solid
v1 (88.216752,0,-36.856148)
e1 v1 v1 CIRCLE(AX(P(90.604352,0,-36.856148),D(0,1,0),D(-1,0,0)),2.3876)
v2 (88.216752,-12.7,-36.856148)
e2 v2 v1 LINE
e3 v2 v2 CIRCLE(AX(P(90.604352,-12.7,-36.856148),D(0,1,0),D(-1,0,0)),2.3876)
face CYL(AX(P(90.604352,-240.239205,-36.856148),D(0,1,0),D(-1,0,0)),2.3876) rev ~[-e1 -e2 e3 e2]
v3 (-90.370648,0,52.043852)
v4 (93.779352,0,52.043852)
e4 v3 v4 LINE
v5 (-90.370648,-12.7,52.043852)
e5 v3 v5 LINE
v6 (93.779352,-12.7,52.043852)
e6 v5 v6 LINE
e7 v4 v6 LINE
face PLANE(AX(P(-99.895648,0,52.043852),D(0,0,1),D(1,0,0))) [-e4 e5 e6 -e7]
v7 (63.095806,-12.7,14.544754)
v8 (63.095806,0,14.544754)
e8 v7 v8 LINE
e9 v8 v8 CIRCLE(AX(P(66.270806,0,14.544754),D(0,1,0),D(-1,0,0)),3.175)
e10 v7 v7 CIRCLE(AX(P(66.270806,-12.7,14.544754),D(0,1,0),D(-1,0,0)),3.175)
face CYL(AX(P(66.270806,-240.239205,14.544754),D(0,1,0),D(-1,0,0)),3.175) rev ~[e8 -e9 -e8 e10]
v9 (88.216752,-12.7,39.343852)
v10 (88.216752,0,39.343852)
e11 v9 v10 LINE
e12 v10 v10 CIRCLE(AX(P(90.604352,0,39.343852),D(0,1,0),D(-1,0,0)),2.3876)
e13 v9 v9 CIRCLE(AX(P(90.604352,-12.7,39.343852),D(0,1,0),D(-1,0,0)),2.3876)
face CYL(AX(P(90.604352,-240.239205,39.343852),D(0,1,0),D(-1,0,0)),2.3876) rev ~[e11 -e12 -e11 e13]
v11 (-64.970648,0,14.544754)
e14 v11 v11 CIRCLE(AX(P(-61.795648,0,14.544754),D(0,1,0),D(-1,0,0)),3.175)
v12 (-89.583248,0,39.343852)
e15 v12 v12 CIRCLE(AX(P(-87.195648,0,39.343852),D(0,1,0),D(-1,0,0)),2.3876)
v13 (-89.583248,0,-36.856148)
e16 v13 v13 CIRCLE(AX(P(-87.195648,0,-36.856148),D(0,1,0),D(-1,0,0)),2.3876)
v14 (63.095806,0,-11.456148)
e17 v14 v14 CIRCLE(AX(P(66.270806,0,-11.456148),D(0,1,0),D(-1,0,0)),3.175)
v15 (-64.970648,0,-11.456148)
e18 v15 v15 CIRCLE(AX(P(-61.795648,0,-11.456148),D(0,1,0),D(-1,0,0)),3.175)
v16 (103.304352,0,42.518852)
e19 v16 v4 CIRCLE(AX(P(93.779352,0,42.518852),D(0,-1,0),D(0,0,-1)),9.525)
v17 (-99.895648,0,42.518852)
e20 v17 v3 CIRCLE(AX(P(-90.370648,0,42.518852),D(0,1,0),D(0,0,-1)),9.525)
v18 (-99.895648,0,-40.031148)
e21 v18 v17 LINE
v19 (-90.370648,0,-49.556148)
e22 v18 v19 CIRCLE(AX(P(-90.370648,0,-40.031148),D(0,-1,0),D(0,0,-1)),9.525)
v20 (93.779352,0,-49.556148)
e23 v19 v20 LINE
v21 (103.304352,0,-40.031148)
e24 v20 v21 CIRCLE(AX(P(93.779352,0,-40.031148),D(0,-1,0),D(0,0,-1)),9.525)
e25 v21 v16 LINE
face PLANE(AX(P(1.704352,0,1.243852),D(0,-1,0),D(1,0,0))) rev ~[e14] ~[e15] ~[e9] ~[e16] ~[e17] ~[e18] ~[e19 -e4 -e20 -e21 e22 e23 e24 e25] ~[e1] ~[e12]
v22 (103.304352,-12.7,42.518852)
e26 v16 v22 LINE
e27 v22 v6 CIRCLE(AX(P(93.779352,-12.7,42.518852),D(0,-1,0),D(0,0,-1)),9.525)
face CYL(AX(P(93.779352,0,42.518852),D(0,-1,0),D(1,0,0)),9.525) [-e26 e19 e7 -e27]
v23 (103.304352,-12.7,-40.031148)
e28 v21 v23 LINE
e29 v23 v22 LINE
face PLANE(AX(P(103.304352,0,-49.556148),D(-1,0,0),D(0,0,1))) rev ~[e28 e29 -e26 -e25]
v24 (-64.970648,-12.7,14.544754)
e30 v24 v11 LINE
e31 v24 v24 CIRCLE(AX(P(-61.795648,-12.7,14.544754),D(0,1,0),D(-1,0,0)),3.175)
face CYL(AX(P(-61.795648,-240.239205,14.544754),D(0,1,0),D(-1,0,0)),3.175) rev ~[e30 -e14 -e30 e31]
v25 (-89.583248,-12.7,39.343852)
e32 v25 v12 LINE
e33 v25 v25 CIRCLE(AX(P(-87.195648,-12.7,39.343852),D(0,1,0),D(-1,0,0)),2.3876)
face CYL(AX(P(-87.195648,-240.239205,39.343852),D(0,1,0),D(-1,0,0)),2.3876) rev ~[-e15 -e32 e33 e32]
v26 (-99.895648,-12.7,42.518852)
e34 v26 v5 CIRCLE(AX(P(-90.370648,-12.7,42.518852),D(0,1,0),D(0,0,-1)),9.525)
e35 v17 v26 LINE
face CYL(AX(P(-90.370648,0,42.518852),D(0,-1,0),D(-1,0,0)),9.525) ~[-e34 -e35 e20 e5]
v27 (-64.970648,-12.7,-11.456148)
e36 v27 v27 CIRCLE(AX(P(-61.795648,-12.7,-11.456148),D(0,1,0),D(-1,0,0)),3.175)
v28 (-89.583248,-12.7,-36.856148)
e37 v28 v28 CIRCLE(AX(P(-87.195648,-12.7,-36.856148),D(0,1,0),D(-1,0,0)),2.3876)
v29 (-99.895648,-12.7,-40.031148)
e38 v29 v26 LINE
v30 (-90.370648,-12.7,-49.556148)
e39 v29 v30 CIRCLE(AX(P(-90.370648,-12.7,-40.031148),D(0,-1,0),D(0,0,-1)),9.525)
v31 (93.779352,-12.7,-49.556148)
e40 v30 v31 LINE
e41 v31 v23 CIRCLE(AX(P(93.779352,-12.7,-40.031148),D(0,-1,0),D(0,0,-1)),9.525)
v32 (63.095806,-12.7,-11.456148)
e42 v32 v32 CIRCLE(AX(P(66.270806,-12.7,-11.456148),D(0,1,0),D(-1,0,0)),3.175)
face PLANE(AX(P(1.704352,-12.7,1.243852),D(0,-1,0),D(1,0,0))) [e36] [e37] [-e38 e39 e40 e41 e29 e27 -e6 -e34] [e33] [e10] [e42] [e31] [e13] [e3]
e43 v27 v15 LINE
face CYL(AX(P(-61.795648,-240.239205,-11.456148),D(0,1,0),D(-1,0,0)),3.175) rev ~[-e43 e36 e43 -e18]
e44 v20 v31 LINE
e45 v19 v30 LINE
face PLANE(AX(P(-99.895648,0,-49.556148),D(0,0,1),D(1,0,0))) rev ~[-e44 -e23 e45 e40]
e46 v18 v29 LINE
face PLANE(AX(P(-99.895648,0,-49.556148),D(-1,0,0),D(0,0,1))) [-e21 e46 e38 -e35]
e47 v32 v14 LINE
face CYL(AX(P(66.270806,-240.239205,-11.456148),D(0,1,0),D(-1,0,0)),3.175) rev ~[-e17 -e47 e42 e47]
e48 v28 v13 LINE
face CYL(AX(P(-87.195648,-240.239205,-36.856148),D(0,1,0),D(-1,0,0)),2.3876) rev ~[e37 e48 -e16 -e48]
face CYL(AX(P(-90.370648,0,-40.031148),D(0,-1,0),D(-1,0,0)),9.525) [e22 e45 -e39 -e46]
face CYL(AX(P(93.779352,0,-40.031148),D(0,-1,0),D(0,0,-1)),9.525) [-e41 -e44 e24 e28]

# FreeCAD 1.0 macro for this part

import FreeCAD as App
import Part
import Sketcher

V = App.Vector
Q = App.Units.Quantity


def edges_at(feature, points):
    """Names of the edges that pass closest to the given points."""
    edges = feature.Shape.Edges
    near = lambda p: min(range(len(edges)), key=lambda i: edges[i].distToShape(Part.Vertex(*p))[0])
    return sorted({f"Edge{near(p) + 1}" for p in points})

doc = App.newDocument("Part")
body = doc.addObject("PartDesign::Body", "Body")

# Sketch on XZ plane
sketch1 = body.newObject("Sketcher::SketchObject", "Sketch")
sketch1.AttachmentSupport = (doc.getObject("XZ_Plane"), [""])
sketch1.MapMode = "FlatFace"
sketch1.addGeometry([
    Part.LineSegment(V(-99.895648, 52.043852, 0), V(-99.895648, -49.556148, 0)),
    Part.LineSegment(V(-99.895648, -49.556148, 0), V(103.304352, -49.556148, 0)),
    Part.LineSegment(V(103.304352, -49.556148, 0), V(103.304352, 52.043852, 0)),
    Part.LineSegment(V(103.304352, 52.043852, 0), V(-99.895648, 52.043852, 0)),
], False)
sketch1.addConstraint([
    Sketcher.Constraint("Coincident", 0, 2, 1, 1),
    Sketcher.Constraint("Coincident", 1, 2, 2, 1),
    Sketcher.Constraint("Coincident", 2, 2, 3, 1),
    Sketcher.Constraint("Coincident", 3, 2, 0, 1),
    Sketcher.Constraint("Vertical", 0),
    Sketcher.Constraint("Horizontal", 1),
    Sketcher.Constraint("Vertical", 2),
    Sketcher.Constraint("Horizontal", 3),
    Sketcher.Constraint("DistanceX", 1, 1, 1, 2, Q("8 in")),
    Sketcher.Constraint("DistanceY", 0, 2, 0, 1, Q("4 in")),
    Sketcher.Constraint("DistanceX", -1, 1, 1, 2, 103.304352),
    Sketcher.Constraint("DistanceY", 0, 2, -1, 1, 49.556148),
])
pad1 = body.newObject("PartDesign::Pad", "Pad")
pad1.Profile = sketch1
pad1.Length = Q("0.5 in")
doc.recompute()

fillet = body.newObject("PartDesign::Fillet", "Fillet")
fillet.Base = (pad1, edges_at(pad1, [
    (-99.896, -6.35, 52.044),
    (103.304, -6.35, 52.044),
    (103.304, -6.35, -49.556),
    (-99.896, -6.35, -49.556),
]))
fillet.Radius = Q("0.375 in")

# Sketch on XZ plane
sketch2 = body.newObject("Sketcher::SketchObject", "Sketch001")
sketch2.AttachmentSupport = (doc.getObject("XZ_Plane"), [""])
sketch2.MapMode = "FlatFace"
sketch2.AttachmentOffset = App.Placement(V(0, 0, 0.5 * 25.4), App.Rotation())
sketch2.addGeometry([
    Part.Circle(V(-87.195648, -36.856148, 0), V(0, 0, 1), 2.3876),
    Part.Circle(V(-87.195648, 39.343852, 0), V(0, 0, 1), 2.3876),
    Part.Circle(V(90.604352, 39.343852, 0), V(0, 0, 1), 2.3876),
    Part.Circle(V(90.604352, -36.856148, 0), V(0, 0, 1), 2.3876),
], False)
sketch2.addConstraint([
    Sketcher.Constraint("Equal", 0, 1),
    Sketcher.Constraint("Equal", 1, 2),
    Sketcher.Constraint("Equal", 2, 3),
    Sketcher.Constraint("Horizontal", 1, 3, 2, 3),
    Sketcher.Constraint("Horizontal", 0, 3, 3, 3),
    Sketcher.Constraint("Vertical", 0, 3, 1, 3),
    Sketcher.Constraint("Vertical", 2, 3, 3, 3),
    Sketcher.Constraint("Diameter", 0, Q("0.188 in")),
    Sketcher.Constraint("DistanceY", 0, 3, 1, 3, Q("3 in")),
    Sketcher.Constraint("DistanceX", 1, 3, 2, 3, Q("7 in")),
    Sketcher.Constraint("DistanceX", 0, 3, -1, 1, 87.195648),
    Sketcher.Constraint("DistanceY", -1, 1, 1, 3, 39.343852),
])
doc.recompute()
hole = body.newObject("PartDesign::Hole", "Hole")
hole.Profile = sketch2
hole.ThreadType = "None"
hole.Diameter = Q("0.188 in")
hole.DepthType = "ThroughAll"

# Sketch on XZ plane
sketch3 = body.newObject("Sketcher::SketchObject", "Sketch002")
sketch3.AttachmentSupport = (doc.getObject("XZ_Plane"), [""])
sketch3.MapMode = "FlatFace"
sketch3.AttachmentOffset = App.Placement(V(0, 0, 0.5 * 25.4), App.Rotation())
sketch3.addGeometry([
    Part.Circle(V(-61.795648, 14.544754, 0), V(0, 0, 1), 3.175),
    Part.Circle(V(-61.795648, -11.456148, 0), V(0, 0, 1), 3.175),
    Part.Circle(V(66.270806, -11.456148, 0), V(0, 0, 1), 3.175),
    Part.Circle(V(66.270806, 14.544754, 0), V(0, 0, 1), 3.175),
], False)
sketch3.addConstraint([
    Sketcher.Constraint("Equal", 0, 1),
    Sketcher.Constraint("Equal", 1, 2),
    Sketcher.Constraint("Equal", 2, 3),
    Sketcher.Constraint("Horizontal", 1, 3, 2, 3),
    Sketcher.Constraint("Horizontal", 0, 3, 3, 3),
    Sketcher.Constraint("Vertical", 0, 3, 1, 3),
    Sketcher.Constraint("Vertical", 2, 3, 3, 3),
    Sketcher.Constraint("Diameter", 0, Q("0.25 in")),
    Sketcher.Constraint("DistanceY", 1, 3, 0, 3, 26.000902),
    Sketcher.Constraint("DistanceY", 1, 3, -1, 1, 11.456148),
    Sketcher.Constraint("DistanceX", 0, 3, -1, 1, 61.795648),
    Sketcher.Constraint("DistanceX", -1, 1, 2, 3, 66.270806),
])
doc.recompute()
hole2 = body.newObject("PartDesign::Hole", "Hole001")
hole2.Profile = sketch3
hole2.ThreadType = "None"
hole2.Diameter = Q("0.25 in")
hole2.DepthType = "ThroughAll"

doc.recompute()
